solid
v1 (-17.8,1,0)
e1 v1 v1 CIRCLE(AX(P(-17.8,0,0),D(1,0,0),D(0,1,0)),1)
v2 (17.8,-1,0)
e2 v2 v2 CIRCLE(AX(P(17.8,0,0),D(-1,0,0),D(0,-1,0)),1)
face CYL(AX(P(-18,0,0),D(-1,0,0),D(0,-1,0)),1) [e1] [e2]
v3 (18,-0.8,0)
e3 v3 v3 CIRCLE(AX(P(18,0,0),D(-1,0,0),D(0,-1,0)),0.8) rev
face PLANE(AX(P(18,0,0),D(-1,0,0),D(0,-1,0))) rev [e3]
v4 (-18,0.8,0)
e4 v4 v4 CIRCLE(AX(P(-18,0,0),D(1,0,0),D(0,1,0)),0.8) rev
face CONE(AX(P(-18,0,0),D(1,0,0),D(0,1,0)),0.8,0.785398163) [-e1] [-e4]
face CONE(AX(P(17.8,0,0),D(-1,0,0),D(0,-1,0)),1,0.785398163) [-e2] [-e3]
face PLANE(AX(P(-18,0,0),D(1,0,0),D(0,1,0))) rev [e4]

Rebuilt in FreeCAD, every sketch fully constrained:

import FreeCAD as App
import Part
import Sketcher
Q = App.Units.Quantity


def edges_at(feature, points):
    """Names of the edges that pass closest to the given points."""
    edges = feature.Shape.Edges
    near = lambda p: min(range(len(edges)), key=lambda i: edges[i].distToShape(Part.Vertex(*p))[0])
    return sorted({f"Edge{near(p) + 1}" for p in points})


def add_polygon(sketch, points):
    """Adds a closed chain of lines whose ends are joined by coincident constraints."""
    first, n = sketch.GeometryCount, len(points)
    for a, b in zip(points, points[1:] + points[:1]):
        sketch.addGeometry(Part.LineSegment(App.Vector(*a, 0), App.Vector(*b, 0)), False)
    for i in range(n):
        sketch.addConstraint(Sketcher.Constraint("Coincident", first + i, 2, first + (i + 1) % n, 1))

doc = App.newDocument("Part")
body = doc.addObject("PartDesign::Body", "Body")

# Sketch on XY plane
sketch1 = body.newObject("Sketcher::SketchObject", "Sketch")
sketch1.AttachmentSupport = (doc.getObject("XY_Plane"), [""])
sketch1.MapMode = "FlatFace"
add_polygon(sketch1, [(-18, 1), (-18, 0), (18, 0), (18, 1)])  # lines 0-3
sketch1.addConstraint([
    Sketcher.Constraint("Vertical", 0),
    Sketcher.Constraint("Horizontal", 1),
    Sketcher.Constraint("Vertical", 2),
    Sketcher.Constraint("Horizontal", 3),
    Sketcher.Constraint("Symmetric", 0, 2, 1, 2, -1, 1),
    Sketcher.Constraint("DistanceX", 1, 1, 1, 2, Q("36 mm")),
    Sketcher.Constraint("DistanceY", 0, 2, 0, 1, Q("1 mm")),
])
revolution = body.newObject("PartDesign::Revolution", "Revolution")
revolution.Profile = sketch1
revolution.ReferenceAxis = (sketch1, ["H_Axis"])
revolution.Angle = 360
doc.recompute()

chamfer = body.newObject("PartDesign::Chamfer", "Chamfer")
chamfer.Base = (revolution, edges_at(revolution, [(18, -1, 0), (-18, -1, 0)]))
chamfer.Size = 0.2

doc.recompute()
